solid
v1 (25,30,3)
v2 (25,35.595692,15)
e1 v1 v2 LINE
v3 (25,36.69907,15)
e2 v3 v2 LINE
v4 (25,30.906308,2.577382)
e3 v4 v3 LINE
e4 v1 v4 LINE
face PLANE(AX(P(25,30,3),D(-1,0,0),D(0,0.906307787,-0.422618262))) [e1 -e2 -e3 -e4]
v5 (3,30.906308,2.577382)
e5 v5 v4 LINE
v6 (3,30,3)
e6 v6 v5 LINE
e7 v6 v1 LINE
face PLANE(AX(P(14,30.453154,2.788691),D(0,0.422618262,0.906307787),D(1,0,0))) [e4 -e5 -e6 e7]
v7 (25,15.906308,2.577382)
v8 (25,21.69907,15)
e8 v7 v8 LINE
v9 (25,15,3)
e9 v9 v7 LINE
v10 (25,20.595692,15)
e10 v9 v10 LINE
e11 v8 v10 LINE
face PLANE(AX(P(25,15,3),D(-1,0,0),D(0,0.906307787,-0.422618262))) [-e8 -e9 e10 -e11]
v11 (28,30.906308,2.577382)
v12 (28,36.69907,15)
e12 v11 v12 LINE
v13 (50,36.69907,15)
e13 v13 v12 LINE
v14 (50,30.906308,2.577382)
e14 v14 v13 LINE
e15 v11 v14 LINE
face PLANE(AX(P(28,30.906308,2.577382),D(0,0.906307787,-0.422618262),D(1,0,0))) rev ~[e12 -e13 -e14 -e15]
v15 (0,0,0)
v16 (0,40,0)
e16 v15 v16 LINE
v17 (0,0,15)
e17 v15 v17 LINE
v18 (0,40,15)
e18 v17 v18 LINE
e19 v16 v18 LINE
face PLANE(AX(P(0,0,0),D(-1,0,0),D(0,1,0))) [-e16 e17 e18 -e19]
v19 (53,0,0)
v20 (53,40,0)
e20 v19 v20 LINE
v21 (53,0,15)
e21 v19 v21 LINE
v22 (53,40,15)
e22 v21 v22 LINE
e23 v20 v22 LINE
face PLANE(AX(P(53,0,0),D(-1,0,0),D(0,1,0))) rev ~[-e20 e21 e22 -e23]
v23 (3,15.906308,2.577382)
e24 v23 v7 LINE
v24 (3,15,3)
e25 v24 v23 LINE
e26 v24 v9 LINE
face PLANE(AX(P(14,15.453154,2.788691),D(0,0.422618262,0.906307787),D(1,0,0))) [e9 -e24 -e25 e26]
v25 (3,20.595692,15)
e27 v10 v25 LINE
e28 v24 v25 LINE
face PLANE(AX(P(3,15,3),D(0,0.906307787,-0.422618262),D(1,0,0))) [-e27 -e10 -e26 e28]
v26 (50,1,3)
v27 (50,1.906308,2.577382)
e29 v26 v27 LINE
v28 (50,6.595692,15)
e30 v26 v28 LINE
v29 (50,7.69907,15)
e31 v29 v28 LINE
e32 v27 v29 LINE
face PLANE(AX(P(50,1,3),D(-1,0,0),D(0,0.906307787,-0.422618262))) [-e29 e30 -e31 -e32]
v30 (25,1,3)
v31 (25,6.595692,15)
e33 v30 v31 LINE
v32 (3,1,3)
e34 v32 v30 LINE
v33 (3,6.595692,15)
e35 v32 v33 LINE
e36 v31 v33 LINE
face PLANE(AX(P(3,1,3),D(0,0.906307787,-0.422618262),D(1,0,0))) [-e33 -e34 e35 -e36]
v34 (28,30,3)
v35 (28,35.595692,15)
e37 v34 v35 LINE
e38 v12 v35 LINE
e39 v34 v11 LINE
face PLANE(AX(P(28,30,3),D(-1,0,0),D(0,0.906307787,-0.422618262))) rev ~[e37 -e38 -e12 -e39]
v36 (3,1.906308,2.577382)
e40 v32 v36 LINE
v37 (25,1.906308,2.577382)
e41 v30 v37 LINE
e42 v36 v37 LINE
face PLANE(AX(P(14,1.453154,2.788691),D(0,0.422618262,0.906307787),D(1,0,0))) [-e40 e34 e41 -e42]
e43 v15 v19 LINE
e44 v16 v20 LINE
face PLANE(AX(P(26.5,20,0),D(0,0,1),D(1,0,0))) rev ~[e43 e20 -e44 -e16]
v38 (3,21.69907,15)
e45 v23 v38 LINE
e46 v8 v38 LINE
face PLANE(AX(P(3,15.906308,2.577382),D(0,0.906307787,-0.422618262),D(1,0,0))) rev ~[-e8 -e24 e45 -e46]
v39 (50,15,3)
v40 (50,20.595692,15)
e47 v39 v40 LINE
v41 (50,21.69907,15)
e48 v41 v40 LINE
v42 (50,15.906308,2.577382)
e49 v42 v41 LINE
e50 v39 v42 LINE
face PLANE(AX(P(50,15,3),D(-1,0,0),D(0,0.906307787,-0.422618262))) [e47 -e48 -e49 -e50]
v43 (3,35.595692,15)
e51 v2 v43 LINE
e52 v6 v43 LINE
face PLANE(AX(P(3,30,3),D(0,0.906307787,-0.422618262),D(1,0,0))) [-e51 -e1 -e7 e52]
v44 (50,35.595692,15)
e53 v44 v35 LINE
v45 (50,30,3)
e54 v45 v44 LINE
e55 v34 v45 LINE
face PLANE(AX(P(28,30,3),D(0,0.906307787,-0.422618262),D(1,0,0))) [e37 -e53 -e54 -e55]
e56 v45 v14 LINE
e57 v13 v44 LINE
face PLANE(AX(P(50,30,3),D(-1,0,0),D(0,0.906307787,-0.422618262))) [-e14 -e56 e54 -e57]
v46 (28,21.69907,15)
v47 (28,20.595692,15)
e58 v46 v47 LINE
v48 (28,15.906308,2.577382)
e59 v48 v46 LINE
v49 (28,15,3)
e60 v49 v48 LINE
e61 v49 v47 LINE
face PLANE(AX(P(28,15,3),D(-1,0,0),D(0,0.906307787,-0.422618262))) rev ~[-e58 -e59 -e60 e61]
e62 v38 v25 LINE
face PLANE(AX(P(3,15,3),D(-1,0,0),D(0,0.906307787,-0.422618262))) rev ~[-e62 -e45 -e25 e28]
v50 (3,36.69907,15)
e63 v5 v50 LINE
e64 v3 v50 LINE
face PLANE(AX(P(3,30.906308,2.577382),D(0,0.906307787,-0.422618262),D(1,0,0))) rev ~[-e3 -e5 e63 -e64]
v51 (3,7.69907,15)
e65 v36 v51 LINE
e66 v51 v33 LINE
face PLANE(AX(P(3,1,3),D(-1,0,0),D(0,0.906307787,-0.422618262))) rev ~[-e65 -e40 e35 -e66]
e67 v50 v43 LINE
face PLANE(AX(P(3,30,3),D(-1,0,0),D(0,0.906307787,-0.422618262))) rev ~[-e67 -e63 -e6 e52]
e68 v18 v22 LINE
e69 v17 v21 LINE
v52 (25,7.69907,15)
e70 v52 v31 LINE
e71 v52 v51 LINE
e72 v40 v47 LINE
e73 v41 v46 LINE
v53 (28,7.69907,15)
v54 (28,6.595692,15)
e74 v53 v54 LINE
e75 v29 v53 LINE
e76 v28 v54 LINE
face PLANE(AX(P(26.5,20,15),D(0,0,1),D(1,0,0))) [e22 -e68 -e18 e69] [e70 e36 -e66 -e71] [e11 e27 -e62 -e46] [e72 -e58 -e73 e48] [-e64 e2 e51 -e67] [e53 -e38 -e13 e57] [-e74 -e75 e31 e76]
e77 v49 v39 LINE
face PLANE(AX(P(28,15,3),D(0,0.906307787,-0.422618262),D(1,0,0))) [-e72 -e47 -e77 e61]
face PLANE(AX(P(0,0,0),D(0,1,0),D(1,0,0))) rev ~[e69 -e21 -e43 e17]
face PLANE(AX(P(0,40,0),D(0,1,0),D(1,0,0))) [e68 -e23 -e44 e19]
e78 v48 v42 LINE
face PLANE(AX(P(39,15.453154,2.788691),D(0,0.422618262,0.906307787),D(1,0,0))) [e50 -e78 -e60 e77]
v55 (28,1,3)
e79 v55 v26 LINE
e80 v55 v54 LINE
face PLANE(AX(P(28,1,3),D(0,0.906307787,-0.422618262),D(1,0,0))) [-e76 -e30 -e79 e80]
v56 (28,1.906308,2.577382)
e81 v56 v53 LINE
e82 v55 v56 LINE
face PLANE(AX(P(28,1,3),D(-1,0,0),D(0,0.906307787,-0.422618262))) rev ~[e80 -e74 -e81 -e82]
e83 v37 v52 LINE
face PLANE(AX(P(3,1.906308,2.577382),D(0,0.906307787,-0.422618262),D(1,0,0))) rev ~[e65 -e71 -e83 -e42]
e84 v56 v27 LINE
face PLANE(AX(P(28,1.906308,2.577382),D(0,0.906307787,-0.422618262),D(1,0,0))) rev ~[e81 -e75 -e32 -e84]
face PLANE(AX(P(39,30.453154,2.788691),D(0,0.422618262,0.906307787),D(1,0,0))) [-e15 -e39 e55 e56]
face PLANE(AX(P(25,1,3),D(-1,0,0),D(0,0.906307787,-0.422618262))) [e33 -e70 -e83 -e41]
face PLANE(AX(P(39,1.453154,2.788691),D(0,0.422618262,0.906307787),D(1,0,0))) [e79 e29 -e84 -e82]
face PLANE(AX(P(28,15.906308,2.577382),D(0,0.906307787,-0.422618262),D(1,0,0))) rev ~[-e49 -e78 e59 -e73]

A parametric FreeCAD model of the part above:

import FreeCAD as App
import Part
import Sketcher
Q = App.Units.Quantity

doc = App.newDocument("Part")
params = doc.addObject("Spreadsheet::Sheet", "Params")
for row, (alias, value) in enumerate([
    ("sketch1_width", "22 mm"),
    ("sketch1_height", "1 mm"),
    ("pad1_length", "15 mm"),
    ("sketch2_width", "22 mm"),
    ("sketch2_height", "1 mm"),
    ("pad2_length", "15 mm"),
    ("sketch3_width", "22 mm"),
    ("sketch3_height", "1 mm"),
    ("pad3_length", "15 mm"),
    ("sketch4_width", "22 mm"),
    ("sketch4_height", "1 mm"),
    ("pad4_length", "15 mm"),
    ("sketch5_width", "22 mm"),
    ("sketch5_height", "1 mm"),
    ("pad5_length", "15 mm"),
    ("sketch6_width", "22 mm"),
    ("sketch6_height", "1 mm"),
    ("pad6_length", "15 mm"),
    ("sketch7_width", "53 mm"),
    ("sketch7_height", "40 mm"),
    ("pad7_length", "15 mm"),
], start=1):
    params.set(f"A{row}", alias)
    params.set(f"B{row}", "=" + value)
    params.setAlias(f"B{row}", alias)

body = doc.addObject("PartDesign::Body", "Body")

# Sketch on XY plane
sketch1 = body.newObject("Sketcher::SketchObject", "Sketch")
sketch1.AttachmentSupport = (doc.getObject("XY_Plane"), [""])
sketch1.MapMode = "FlatFace"
sketch1.addGeometry([
    Part.LineSegment(App.Vector(0, 1, 0), App.Vector(0, 0, 0)),
    Part.LineSegment(App.Vector(0, 0, 0), App.Vector(22, 0, 0)),
    Part.LineSegment(App.Vector(22, 0, 0), App.Vector(22, 1, 0)),
    Part.LineSegment(App.Vector(22, 1, 0), App.Vector(0, 1, 0)),
], False)
sketch1.addConstraint([
    Sketcher.Constraint("Coincident", 0, 2, 1, 1),
    Sketcher.Constraint("Coincident", 1, 2, 2, 1),
    Sketcher.Constraint("Coincident", 2, 2, 3, 1),
    Sketcher.Constraint("Coincident", 3, 2, 0, 1),
    Sketcher.Constraint("Vertical", 0),
    Sketcher.Constraint("Horizontal", 1),
    Sketcher.Constraint("Vertical", 2),
    Sketcher.Constraint("Horizontal", 3),
    Sketcher.Constraint("Coincident", 0, 2, -1, 1),
    Sketcher.Constraint("DistanceX", 1, 1, 1, 2, Q("22 mm")),
    Sketcher.Constraint("DistanceY", 0, 2, 0, 1, Q("1 mm")),
])
sketch1.setExpression("Constraints[9]", "Params.sketch1_width")
sketch1.setExpression("Constraints[10]", "Params.sketch1_height")
pad1 = body.newObject("PartDesign::Pad", "Pad")
pad1.Profile = sketch1
pad1.setExpression("Length", "Params.pad1_length")
body2 = doc.addObject("PartDesign::Body", "Body001")
doc.recompute()

body.Placement = App.Placement(App.Vector(3, 15, 3), App.Rotation(App.Vector(1, 0, 0), 335))
boolean = body2.newObject("PartDesign::Boolean", "Boolean")
boolean.Type = "Fuse"
boolean.addObjects([body])
body3 = doc.addObject("PartDesign::Body", "Body002")

# Sketch on XY plane
sketch2 = body3.newObject("Sketcher::SketchObject", "Sketch001")
sketch2.AttachmentSupport = (doc.getObject("XY_Plane002"), [""])
sketch2.MapMode = "FlatFace"
sketch2.addGeometry([
    Part.LineSegment(App.Vector(0, 1, 0), App.Vector(0, 0, 0)),
    Part.LineSegment(App.Vector(0, 0, 0), App.Vector(22, 0, 0)),
    Part.LineSegment(App.Vector(22, 0, 0), App.Vector(22, 1, 0)),
    Part.LineSegment(App.Vector(22, 1, 0), App.Vector(0, 1, 0)),
], False)
sketch2.addConstraint([
    Sketcher.Constraint("Coincident", 0, 2, 1, 1),
    Sketcher.Constraint("Coincident", 1, 2, 2, 1),
    Sketcher.Constraint("Coincident", 2, 2, 3, 1),
    Sketcher.Constraint("Coincident", 3, 2, 0, 1),
    Sketcher.Constraint("Vertical", 0),
    Sketcher.Constraint("Horizontal", 1),
    Sketcher.Constraint("Vertical", 2),
    Sketcher.Constraint("Horizontal", 3),
    Sketcher.Constraint("Coincident", 0, 2, -1, 1),
    Sketcher.Constraint("DistanceX", 1, 1, 1, 2, Q("22 mm")),
    Sketcher.Constraint("DistanceY", 0, 2, 0, 1, Q("1 mm")),
])
sketch2.setExpression("Constraints[9]", "Params.sketch2_width")
sketch2.setExpression("Constraints[10]", "Params.sketch2_height")
pad2 = body3.newObject("PartDesign::Pad", "Pad001")
pad2.Profile = sketch2
pad2.setExpression("Length", "Params.pad2_length")
body4 = doc.addObject("PartDesign::Body", "Body003")
doc.recompute()

body3.Placement = App.Placement(App.Vector(3, 30, 3), App.Rotation(App.Vector(1, 0, 0), 335))
boolean2 = body4.newObject("PartDesign::Boolean", "Boolean001")
boolean2.Type = "Fuse"
boolean2.addObjects([body3])
body5 = doc.addObject("PartDesign::Body", "Body004")

# Sketch on XY plane
sketch3 = body5.newObject("Sketcher::SketchObject", "Sketch002")
sketch3.AttachmentSupport = (doc.getObject("XY_Plane004"), [""])
sketch3.MapMode = "FlatFace"
sketch3.addGeometry([
    Part.LineSegment(App.Vector(0, 1, 0), App.Vector(0, 0, 0)),
    Part.LineSegment(App.Vector(0, 0, 0), App.Vector(22, 0, 0)),
    Part.LineSegment(App.Vector(22, 0, 0), App.Vector(22, 1, 0)),
    Part.LineSegment(App.Vector(22, 1, 0), App.Vector(0, 1, 0)),
], False)
sketch3.addConstraint([
    Sketcher.Constraint("Coincident", 0, 2, 1, 1),
    Sketcher.Constraint("Coincident", 1, 2, 2, 1),
    Sketcher.Constraint("Coincident", 2, 2, 3, 1),
    Sketcher.Constraint("Coincident", 3, 2, 0, 1),
    Sketcher.Constraint("Vertical", 0),
    Sketcher.Constraint("Horizontal", 1),
    Sketcher.Constraint("Vertical", 2),
    Sketcher.Constraint("Horizontal", 3),
    Sketcher.Constraint("Coincident", 0, 2, -1, 1),
    Sketcher.Constraint("DistanceX", 1, 1, 1, 2, Q("22 mm")),
    Sketcher.Constraint("DistanceY", 0, 2, 0, 1, Q("1 mm")),
])
sketch3.setExpression("Constraints[9]", "Params.sketch3_width")
sketch3.setExpression("Constraints[10]", "Params.sketch3_height")
pad3 = body5.newObject("PartDesign::Pad", "Pad002")
pad3.Profile = sketch3
pad3.setExpression("Length", "Params.pad3_length")
body6 = doc.addObject("PartDesign::Body", "Body005")
doc.recompute()

body5.Placement = App.Placement(App.Vector(28, 1, 3), App.Rotation(App.Vector(1, 0, 0), 335))
boolean3 = body6.newObject("PartDesign::Boolean", "Boolean002")
boolean3.Type = "Fuse"
boolean3.addObjects([body5])
body7 = doc.addObject("PartDesign::Body", "Body006")

# Sketch on XY plane
sketch4 = body7.newObject("Sketcher::SketchObject", "Sketch003")
sketch4.AttachmentSupport = (doc.getObject("XY_Plane006"), [""])
sketch4.MapMode = "FlatFace"
sketch4.addGeometry([
    Part.LineSegment(App.Vector(0, 1, 0), App.Vector(0, 0, 0)),
    Part.LineSegment(App.Vector(0, 0, 0), App.Vector(22, 0, 0)),
    Part.LineSegment(App.Vector(22, 0, 0), App.Vector(22, 1, 0)),
    Part.LineSegment(App.Vector(22, 1, 0), App.Vector(0, 1, 0)),
], False)
sketch4.addConstraint([
    Sketcher.Constraint("Coincident", 0, 2, 1, 1),
    Sketcher.Constraint("Coincident", 1, 2, 2, 1),
    Sketcher.Constraint("Coincident", 2, 2, 3, 1),
    Sketcher.Constraint("Coincident", 3, 2, 0, 1),
    Sketcher.Constraint("Vertical", 0),
    Sketcher.Constraint("Horizontal", 1),
    Sketcher.Constraint("Vertical", 2),
    Sketcher.Constraint("Horizontal", 3),
    Sketcher.Constraint("Coincident", 0, 2, -1, 1),
    Sketcher.Constraint("DistanceX", 1, 1, 1, 2, Q("22 mm")),
    Sketcher.Constraint("DistanceY", 0, 2, 0, 1, Q("1 mm")),
])
sketch4.setExpression("Constraints[9]", "Params.sketch4_width")
sketch4.setExpression("Constraints[10]", "Params.sketch4_height")
pad4 = body7.newObject("PartDesign::Pad", "Pad003")
pad4.Profile = sketch4
pad4.setExpression("Length", "Params.pad4_length")
body8 = doc.addObject("PartDesign::Body", "Body007")
doc.recompute()

body7.Placement = App.Placement(App.Vector(28, 15, 3), App.Rotation(App.Vector(1, 0, 0), 335))
boolean4 = body8.newObject("PartDesign::Boolean", "Boolean003")
boolean4.Type = "Fuse"
boolean4.addObjects([body7])
body9 = doc.addObject("PartDesign::Body", "Body008")

# Sketch on XY plane
sketch5 = body9.newObject("Sketcher::SketchObject", "Sketch004")
sketch5.AttachmentSupport = (doc.getObject("XY_Plane008"), [""])
sketch5.MapMode = "FlatFace"
sketch5.addGeometry([
    Part.LineSegment(App.Vector(0, 1, 0), App.Vector(0, 0, 0)),
    Part.LineSegment(App.Vector(0, 0, 0), App.Vector(22, 0, 0)),
    Part.LineSegment(App.Vector(22, 0, 0), App.Vector(22, 1, 0)),
    Part.LineSegment(App.Vector(22, 1, 0), App.Vector(0, 1, 0)),
], False)
sketch5.addConstraint([
    Sketcher.Constraint("Coincident", 0, 2, 1, 1),
    Sketcher.Constraint("Coincident", 1, 2, 2, 1),
    Sketcher.Constraint("Coincident", 2, 2, 3, 1),
    Sketcher.Constraint("Coincident", 3, 2, 0, 1),
    Sketcher.Constraint("Vertical", 0),
    Sketcher.Constraint("Horizontal", 1),
    Sketcher.Constraint("Vertical", 2),
    Sketcher.Constraint("Horizontal", 3),
    Sketcher.Constraint("Coincident", 0, 2, -1, 1),
    Sketcher.Constraint("DistanceX", 1, 1, 1, 2, Q("22 mm")),
    Sketcher.Constraint("DistanceY", 0, 2, 0, 1, Q("1 mm")),
])
sketch5.setExpression("Constraints[9]", "Params.sketch5_width")
sketch5.setExpression("Constraints[10]", "Params.sketch5_height")
pad5 = body9.newObject("PartDesign::Pad", "Pad004")
pad5.Profile = sketch5
pad5.setExpression("Length", "Params.pad5_length")
body10 = doc.addObject("PartDesign::Body", "Body009")
doc.recompute()

body9.Placement = App.Placement(App.Vector(28, 30, 3), App.Rotation(App.Vector(1, 0, 0), 335))
boolean5 = body10.newObject("PartDesign::Boolean", "Boolean004")
boolean5.Type = "Fuse"
boolean5.addObjects([body9])
body11 = doc.addObject("PartDesign::Body", "Body010")

# Sketch on XY plane
sketch6 = body11.newObject("Sketcher::SketchObject", "Sketch005")
sketch6.AttachmentSupport = (doc.getObject("XY_Plane010"), [""])
sketch6.MapMode = "FlatFace"
sketch6.addGeometry([
    Part.LineSegment(App.Vector(0, 1, 0), App.Vector(0, 0, 0)),
    Part.LineSegment(App.Vector(0, 0, 0), App.Vector(22, 0, 0)),
    Part.LineSegment(App.Vector(22, 0, 0), App.Vector(22, 1, 0)),
    Part.LineSegment(App.Vector(22, 1, 0), App.Vector(0, 1, 0)),
], False)
sketch6.addConstraint([
    Sketcher.Constraint("Coincident", 0, 2, 1, 1),
    Sketcher.Constraint("Coincident", 1, 2, 2, 1),
    Sketcher.Constraint("Coincident", 2, 2, 3, 1),
    Sketcher.Constraint("Coincident", 3, 2, 0, 1),
    Sketcher.Constraint("Vertical", 0),
    Sketcher.Constraint("Horizontal", 1),
    Sketcher.Constraint("Vertical", 2),
    Sketcher.Constraint("Horizontal", 3),
    Sketcher.Constraint("Coincident", 0, 2, -1, 1),
    Sketcher.Constraint("DistanceX", 1, 1, 1, 2, Q("22 mm")),
    Sketcher.Constraint("DistanceY", 0, 2, 0, 1, Q("1 mm")),
])
sketch6.setExpression("Constraints[9]", "Params.sketch6_width")
sketch6.setExpression("Constraints[10]", "Params.sketch6_height")
pad6 = body11.newObject("PartDesign::Pad", "Pad005")
pad6.Profile = sketch6
pad6.setExpression("Length", "Params.pad6_length")
body12 = doc.addObject("PartDesign::Body", "Body011")
body12.AllowCompound = True
doc.recompute()

body11.Placement = App.Placement(App.Vector(3, 1, 3), App.Rotation(App.Vector(1, 0, 0), 335))
boolean6 = body12.newObject("PartDesign::Boolean", "Boolean005")
boolean6.Type = "Fuse"
boolean6.addObjects([body11])
doc.recompute()

boolean7 = body12.newObject("PartDesign::Boolean", "Boolean006")
boolean7.Type = "Fuse"
boolean7.addObjects([body2])
doc.recompute()

boolean8 = body12.newObject("PartDesign::Boolean", "Boolean007")
boolean8.Type = "Fuse"
boolean8.addObjects([body4])
doc.recompute()

boolean9 = body12.newObject("PartDesign::Boolean", "Boolean008")
boolean9.Type = "Fuse"
boolean9.addObjects([body6])
doc.recompute()

boolean10 = body12.newObject("PartDesign::Boolean", "Boolean009")
boolean10.Type = "Fuse"
boolean10.addObjects([body8])
doc.recompute()

boolean11 = body12.newObject("PartDesign::Boolean", "Boolean010")
boolean11.Type = "Fuse"
boolean11.addObjects([body10])
body13 = doc.addObject("PartDesign::Body", "Body012")

# Sketch on XY plane
sketch7 = body13.newObject("Sketcher::SketchObject", "Sketch006")
sketch7.AttachmentSupport = (doc.getObject("XY_Plane012"), [""])
sketch7.MapMode = "FlatFace"
sketch7.addGeometry([
    Part.LineSegment(App.Vector(0, 40, 0), App.Vector(0, 0, 0)),
    Part.LineSegment(App.Vector(0, 0, 0), App.Vector(53, 0, 0)),
    Part.LineSegment(App.Vector(53, 0, 0), App.Vector(53, 40, 0)),
    Part.LineSegment(App.Vector(53, 40, 0), App.Vector(0, 40, 0)),
], False)
sketch7.addConstraint([
    Sketcher.Constraint("Coincident", 0, 2, 1, 1),
    Sketcher.Constraint("Coincident", 1, 2, 2, 1),
    Sketcher.Constraint("Coincident", 2, 2, 3, 1),
    Sketcher.Constraint("Coincident", 3, 2, 0, 1),
    Sketcher.Constraint("Vertical", 0),
    Sketcher.Constraint("Horizontal", 1),
    Sketcher.Constraint("Vertical", 2),
    Sketcher.Constraint("Horizontal", 3),
    Sketcher.Constraint("Coincident", 0, 2, -1, 1),
    Sketcher.Constraint("DistanceX", 1, 1, 1, 2, Q("53 mm")),
    Sketcher.Constraint("DistanceY", 0, 2, 0, 1, Q("40 mm")),
])
sketch7.setExpression("Constraints[9]", "Params.sketch7_width")
sketch7.setExpression("Constraints[10]", "Params.sketch7_height")
pad7 = body13.newObject("PartDesign::Pad", "Pad006")
pad7.Profile = sketch7
pad7.setExpression("Length", "Params.pad7_length")
doc.recompute()

boolean12 = body13.newObject("PartDesign::Boolean", "Boolean011")
boolean12.Type = "Cut"
boolean12.addObjects([body12])

doc.recompute()
